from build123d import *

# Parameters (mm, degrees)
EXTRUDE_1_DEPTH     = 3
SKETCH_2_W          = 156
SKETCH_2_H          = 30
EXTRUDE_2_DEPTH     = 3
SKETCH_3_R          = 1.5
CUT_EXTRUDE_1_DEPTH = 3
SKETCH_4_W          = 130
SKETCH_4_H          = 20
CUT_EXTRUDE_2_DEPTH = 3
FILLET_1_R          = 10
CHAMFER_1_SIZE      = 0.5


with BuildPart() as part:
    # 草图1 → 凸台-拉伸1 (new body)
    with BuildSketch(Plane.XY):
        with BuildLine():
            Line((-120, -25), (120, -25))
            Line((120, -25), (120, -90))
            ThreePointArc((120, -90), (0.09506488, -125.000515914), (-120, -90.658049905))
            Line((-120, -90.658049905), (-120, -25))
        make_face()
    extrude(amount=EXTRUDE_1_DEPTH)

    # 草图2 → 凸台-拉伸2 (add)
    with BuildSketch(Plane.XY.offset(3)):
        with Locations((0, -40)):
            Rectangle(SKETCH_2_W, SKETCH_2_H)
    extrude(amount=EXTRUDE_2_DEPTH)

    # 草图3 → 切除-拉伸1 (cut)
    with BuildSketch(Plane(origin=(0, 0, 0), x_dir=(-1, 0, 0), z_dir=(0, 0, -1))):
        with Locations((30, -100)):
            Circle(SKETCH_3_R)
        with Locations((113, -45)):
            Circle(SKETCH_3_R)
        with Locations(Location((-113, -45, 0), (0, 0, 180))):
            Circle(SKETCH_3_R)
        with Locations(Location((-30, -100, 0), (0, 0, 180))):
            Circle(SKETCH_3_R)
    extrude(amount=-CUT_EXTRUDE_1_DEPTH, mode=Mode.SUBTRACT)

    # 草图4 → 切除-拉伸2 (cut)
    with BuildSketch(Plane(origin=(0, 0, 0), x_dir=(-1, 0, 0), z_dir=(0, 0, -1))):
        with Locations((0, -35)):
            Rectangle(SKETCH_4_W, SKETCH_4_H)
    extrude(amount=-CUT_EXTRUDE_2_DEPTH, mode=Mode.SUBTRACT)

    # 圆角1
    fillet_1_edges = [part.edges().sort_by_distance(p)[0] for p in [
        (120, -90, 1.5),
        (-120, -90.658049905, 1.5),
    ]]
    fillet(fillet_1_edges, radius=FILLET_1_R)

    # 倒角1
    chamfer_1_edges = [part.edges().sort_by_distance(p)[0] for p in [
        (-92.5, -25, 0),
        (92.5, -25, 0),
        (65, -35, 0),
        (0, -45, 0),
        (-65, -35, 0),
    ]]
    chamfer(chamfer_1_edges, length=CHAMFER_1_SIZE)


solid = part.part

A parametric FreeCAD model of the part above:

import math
import FreeCAD as App
import Part
import Sketcher
from FreeCAD import Vector
Q = App.Units.Quantity


def edges_at(feature, points):
    """Names of the edges that pass closest to the given points."""
    edges = feature.Shape.Edges
    near = lambda p: min(range(len(edges)), key=lambda i: edges[i].distToShape(Part.Vertex(*p))[0])
    return sorted({f"Edge{near(p) + 1}" for p in points})

doc = App.newDocument("Part")
body = doc.addObject("PartDesign::Body", "Body")

# Sketch on XY plane
sketch1 = body.newObject("Sketcher::SketchObject", "Sketch")
sketch1.AttachmentSupport = (doc.getObject("XY_Plane"), [""])
sketch1.MapMode = "FlatFace"
sketch1.addGeometry(Part.LineSegment(Vector(120, -25, 0), Vector(-120, -25, 0)), False)
sketch1.addGeometry(Part.LineSegment(Vector(-120, -25, 0), Vector(-120, -91, 0)), False)
sketch1.addGeometry(Part.ArcOfCircle(Part.Circle(Vector(-1, 100, 0), Vector(0, 0, 1), 225), math.radians(-122), math.radians(-58)), False)
sketch1.addGeometry(Part.LineSegment(Vector(120, -90, 0), Vector(120, -25, 0)), False)
sketch1.addConstraint(Sketcher.Constraint("Coincident", 0, 2, 1, 1))
sketch1.addConstraint(Sketcher.Constraint("Coincident", 1, 2, 2, 1))
sketch1.addConstraint(Sketcher.Constraint("Coincident", 2, 2, 3, 1))
sketch1.addConstraint(Sketcher.Constraint("Coincident", 3, 2, 0, 1))
sketch1.addConstraint(Sketcher.Constraint("Horizontal", 0))
sketch1.addConstraint(Sketcher.Constraint("Vertical", 1))
sketch1.addConstraint(Sketcher.Constraint("Vertical", 3))
sketch1.addConstraint(Sketcher.Constraint("Radius", 2, Q("225 mm")))
sketch1.addConstraint(Sketcher.Constraint("DistanceX", 0, 2, 0, 1, Q("240 mm")))
sketch1.addConstraint(Sketcher.Constraint("DistanceY", 3, 1, 3, 2, Q("65 mm")))
sketch1.addConstraint(Sketcher.Constraint("DistanceX", 0, 2, -1, 1, Q("120 mm")))
sketch1.addConstraint(Sketcher.Constraint("DistanceY", 0, 2, -1, 1, Q("25 mm")))
sketch1.addConstraint(Sketcher.Constraint("DistanceY", 1, 2, 1, 1, Q("65.65805 mm")))
pad1 = body.newObject("PartDesign::Pad", "Pad")
pad1.Profile = sketch1
pad1.Length = 3

# Sketch on XY plane
sketch2 = body.newObject("Sketcher::SketchObject", "Sketch001")
sketch2.AttachmentSupport = (doc.getObject("XY_Plane"), [""])
sketch2.MapMode = "FlatFace"
sketch2.AttachmentOffset = App.Placement(Vector(0, 0, 3), App.Rotation())
sketch2.addGeometry(Part.LineSegment(Vector(-78, -25, 0), Vector(-78, -55, 0)), False)
sketch2.addGeometry(Part.LineSegment(Vector(-78, -55, 0), Vector(78, -55, 0)), False)
sketch2.addGeometry(Part.LineSegment(Vector(78, -55, 0), Vector(78, -25, 0)), False)
sketch2.addGeometry(Part.LineSegment(Vector(78, -25, 0), Vector(-78, -25, 0)), False)
sketch2.addConstraint(Sketcher.Constraint("Coincident", 0, 2, 1, 1))
sketch2.addConstraint(Sketcher.Constraint("Coincident", 1, 2, 2, 1))
sketch2.addConstraint(Sketcher.Constraint("Coincident", 2, 2, 3, 1))
sketch2.addConstraint(Sketcher.Constraint("Coincident", 3, 2, 0, 1))
sketch2.addConstraint(Sketcher.Constraint("Vertical", 0))
sketch2.addConstraint(Sketcher.Constraint("Horizontal", 1))
sketch2.addConstraint(Sketcher.Constraint("Vertical", 2))
sketch2.addConstraint(Sketcher.Constraint("Horizontal", 3))
sketch2.addConstraint(Sketcher.Constraint("DistanceX", 1, 1, 1, 2, Q("156 mm")))
sketch2.addConstraint(Sketcher.Constraint("DistanceY", 0, 2, 0, 1, Q("30 mm")))
sketch2.addConstraint(Sketcher.Constraint("DistanceX", 0, 2, -1, 1, Q("78 mm")))
sketch2.addConstraint(Sketcher.Constraint("DistanceY", 0, 2, -1, 1, Q("55 mm")))
pad2 = body.newObject("PartDesign::Pad", "Pad001")
pad2.Profile = sketch2
pad2.Length = 3

# Sketch on XY plane
sketch3 = body.newObject("Sketcher::SketchObject", "Sketch002")
sketch3.AttachmentSupport = (doc.getObject("XY_Plane"), [""])
sketch3.MapMode = "FlatFace"
sketch3.addGeometry(Part.Circle(Vector(-30, -100, 0), Vector(0, 0, 1), 1.5), False)
sketch3.addGeometry(Part.Circle(Vector(-113, -45, 0), Vector(0, 0, 1), 1.5), False)
sketch3.addGeometry(Part.Circle(Vector(113, -45, 0), Vector(0, 0, 1), 1.5), False)
sketch3.addGeometry(Part.Circle(Vector(30, -100, 0), Vector(0, 0, 1), 1.5), False)
sketch3.addConstraint(Sketcher.Constraint("Equal", 0, 1))
sketch3.addConstraint(Sketcher.Constraint("Equal", 1, 2))
sketch3.addConstraint(Sketcher.Constraint("Equal", 2, 3))
sketch3.addConstraint(Sketcher.Constraint("Symmetric", 1, 3, 2, 3, -2))
sketch3.addConstraint(Sketcher.Constraint("Symmetric", 0, 3, 3, 3, -2))
sketch3.addConstraint(Sketcher.Constraint("Diameter", 0, Q("3 mm")))
sketch3.addConstraint(Sketcher.Constraint("DistanceX", 0, 3, -1, 1, Q("30 mm")))
sketch3.addConstraint(Sketcher.Constraint("DistanceY", 0, 3, -1, 1, Q("100 mm")))
sketch3.addConstraint(Sketcher.Constraint("DistanceX", 1, 3, -1, 1, Q("113 mm")))
sketch3.addConstraint(Sketcher.Constraint("DistanceY", 1, 3, -1, 1, Q("45 mm")))
pocket1 = body.newObject("PartDesign::Pocket", "Pocket")
pocket1.Profile = sketch3
pocket1.Length = 3
pocket1.Reversed = True

# Sketch on XY plane
sketch4 = body.newObject("Sketcher::SketchObject", "Sketch003")
sketch4.AttachmentSupport = (doc.getObject("XY_Plane"), [""])
sketch4.MapMode = "FlatFace"
sketch4.addGeometry(Part.LineSegment(Vector(65, -25, 0), Vector(65, -45, 0)), False)
sketch4.addGeometry(Part.LineSegment(Vector(65, -45, 0), Vector(-65, -45, 0)), False)
sketch4.addGeometry(Part.LineSegment(Vector(-65, -45, 0), Vector(-65, -25, 0)), False)
sketch4.addGeometry(Part.LineSegment(Vector(-65, -25, 0), Vector(65, -25, 0)), False)
sketch4.addConstraint(Sketcher.Constraint("Coincident", 0, 2, 1, 1))
sketch4.addConstraint(Sketcher.Constraint("Coincident", 1, 2, 2, 1))
sketch4.addConstraint(Sketcher.Constraint("Coincident", 2, 2, 3, 1))
sketch4.addConstraint(Sketcher.Constraint("Coincident", 3, 2, 0, 1))
sketch4.addConstraint(Sketcher.Constraint("Vertical", 0))
sketch4.addConstraint(Sketcher.Constraint("Horizontal", 1))
sketch4.addConstraint(Sketcher.Constraint("Vertical", 2))
sketch4.addConstraint(Sketcher.Constraint("Horizontal", 3))
sketch4.addConstraint(Sketcher.Constraint("DistanceX", 1, 2, 1, 1, Q("130 mm")))
sketch4.addConstraint(Sketcher.Constraint("DistanceY", 0, 2, 0, 1, Q("20 mm")))
sketch4.addConstraint(Sketcher.Constraint("DistanceX", -1, 1, 0, 2, Q("65 mm")))
sketch4.addConstraint(Sketcher.Constraint("DistanceY", 0, 2, -1, 1, Q("45 mm")))
pocket2 = body.newObject("PartDesign::Pocket", "Pocket001")
pocket2.Profile = sketch4
pocket2.Length = 3
pocket2.Reversed = True
doc.recompute()

fillet = body.newObject("PartDesign::Fillet", "Fillet")
fillet.Base = (pocket2, edges_at(pocket2, [(120, -90, 1.5), (-120, -90.658, 1.5)]))
fillet.Radius = 10
doc.recompute()

chamfer = body.newObject("PartDesign::Chamfer", "Chamfer")
chamfer.Base = (fillet, edges_at(fillet, [
    (-92.5, -25, 0),
    (92.5, -25, 0),
    (65, -35, 0),
    (0, -45, 0),
    (-65, -35, 0),
]))
chamfer.Size = 0.5

doc.recompute()
